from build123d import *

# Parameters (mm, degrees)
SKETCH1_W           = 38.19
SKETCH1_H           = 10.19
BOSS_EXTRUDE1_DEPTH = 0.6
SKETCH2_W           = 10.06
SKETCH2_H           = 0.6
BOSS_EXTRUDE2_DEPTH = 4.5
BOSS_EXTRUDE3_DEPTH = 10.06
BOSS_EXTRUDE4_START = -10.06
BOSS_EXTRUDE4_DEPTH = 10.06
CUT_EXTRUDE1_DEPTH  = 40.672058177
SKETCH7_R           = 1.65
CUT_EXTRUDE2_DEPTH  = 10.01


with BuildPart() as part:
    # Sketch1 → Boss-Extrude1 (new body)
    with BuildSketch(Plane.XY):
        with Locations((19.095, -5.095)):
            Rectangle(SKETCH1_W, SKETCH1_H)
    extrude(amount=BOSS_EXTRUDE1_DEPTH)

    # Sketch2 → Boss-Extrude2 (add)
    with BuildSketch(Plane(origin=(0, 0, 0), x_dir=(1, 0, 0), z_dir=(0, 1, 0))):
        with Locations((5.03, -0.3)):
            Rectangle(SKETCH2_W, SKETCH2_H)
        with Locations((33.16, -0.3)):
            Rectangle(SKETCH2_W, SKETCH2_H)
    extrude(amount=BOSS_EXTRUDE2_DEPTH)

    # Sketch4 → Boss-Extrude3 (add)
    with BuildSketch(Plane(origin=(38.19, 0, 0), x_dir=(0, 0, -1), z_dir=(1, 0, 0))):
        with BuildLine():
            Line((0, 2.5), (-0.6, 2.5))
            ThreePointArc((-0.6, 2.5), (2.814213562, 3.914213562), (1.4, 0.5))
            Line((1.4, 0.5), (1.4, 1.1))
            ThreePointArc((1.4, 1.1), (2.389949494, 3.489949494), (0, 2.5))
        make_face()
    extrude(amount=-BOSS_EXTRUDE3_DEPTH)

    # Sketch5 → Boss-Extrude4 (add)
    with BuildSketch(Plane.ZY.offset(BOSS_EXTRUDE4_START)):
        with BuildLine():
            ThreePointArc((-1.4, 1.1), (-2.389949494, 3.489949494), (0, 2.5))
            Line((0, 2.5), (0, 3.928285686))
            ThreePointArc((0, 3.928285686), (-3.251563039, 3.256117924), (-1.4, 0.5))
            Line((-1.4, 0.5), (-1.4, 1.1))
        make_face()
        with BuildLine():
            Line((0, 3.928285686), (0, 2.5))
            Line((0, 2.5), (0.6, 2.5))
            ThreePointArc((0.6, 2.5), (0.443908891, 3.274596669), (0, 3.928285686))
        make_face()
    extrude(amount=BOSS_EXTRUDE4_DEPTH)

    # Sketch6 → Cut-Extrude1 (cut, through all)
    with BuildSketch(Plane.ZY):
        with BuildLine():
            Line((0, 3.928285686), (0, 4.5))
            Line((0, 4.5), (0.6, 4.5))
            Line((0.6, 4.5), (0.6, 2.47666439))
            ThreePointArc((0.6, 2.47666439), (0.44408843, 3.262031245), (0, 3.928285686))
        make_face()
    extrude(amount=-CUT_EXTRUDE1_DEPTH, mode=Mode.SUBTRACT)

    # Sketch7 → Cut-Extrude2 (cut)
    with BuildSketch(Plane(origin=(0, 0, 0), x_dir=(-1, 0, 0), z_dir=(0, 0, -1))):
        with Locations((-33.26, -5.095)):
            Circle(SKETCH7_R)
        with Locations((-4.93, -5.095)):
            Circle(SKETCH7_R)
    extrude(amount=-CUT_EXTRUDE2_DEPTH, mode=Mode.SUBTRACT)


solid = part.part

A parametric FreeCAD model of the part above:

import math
import FreeCAD as App
import Part
import Sketcher

V = App.Vector
Q = App.Units.Quantity


def add_polygon(sketch, points):
    """Adds a closed chain of lines whose ends are joined by coincident constraints."""
    first, n = sketch.GeometryCount, len(points)
    for a, b in zip(points, points[1:] + points[:1]):
        sketch.addGeometry(Part.LineSegment(App.Vector(*a, 0), App.Vector(*b, 0)), False)
    for i in range(n):
        sketch.addConstraint(Sketcher.Constraint("Coincident", first + i, 2, first + (i + 1) % n, 1))

doc = App.newDocument("Part")
body = doc.addObject("PartDesign::Body", "Body")

# Sketch on XY plane
sketch1 = body.newObject("Sketcher::SketchObject", "Sketch")
sketch1.AttachmentSupport = (doc.getObject("XY_Plane"), [""])
sketch1.MapMode = "FlatFace"
add_polygon(sketch1, [(0, 0), (0, -10), (38, -10), (38, 0)])  # lines 0-3
sketch1.addConstraint(Sketcher.Constraint("Vertical", 0))
sketch1.addConstraint(Sketcher.Constraint("Horizontal", 1))
sketch1.addConstraint(Sketcher.Constraint("Vertical", 2))
sketch1.addConstraint(Sketcher.Constraint("Horizontal", 3))
sketch1.addConstraint(Sketcher.Constraint("Coincident", 3, 2, -1, 1))
sketch1.addConstraint(Sketcher.Constraint("DistanceX", 1, 1, 1, 2, Q("38.19 mm")))
sketch1.addConstraint(Sketcher.Constraint("DistanceY", 0, 2, 0, 1, Q("10.19 mm")))
pad1 = body.newObject("PartDesign::Pad", "Pad")
pad1.Profile = sketch1
pad1.Length = 0.6

# Sketch on XZ plane
sketch2 = body.newObject("Sketcher::SketchObject", "Sketch001")
sketch2.AttachmentSupport = (doc.getObject("XZ_Plane"), [""])
sketch2.MapMode = "FlatFace"
add_polygon(sketch2, [(0, 0), (0, 0.6), (10.1, 0.6), (10.1, 0)])  # lines 0-3
add_polygon(sketch2, [(28.1, 0), (28.1, 0.6), (38.2, 0.6), (38.2, 0)])  # lines 4-7
sketch2.addConstraint(Sketcher.Constraint("Vertical", 0))
sketch2.addConstraint(Sketcher.Constraint("Horizontal", 1))
sketch2.addConstraint(Sketcher.Constraint("Vertical", 2))
sketch2.addConstraint(Sketcher.Constraint("Horizontal", 3))
sketch2.addConstraint(Sketcher.Constraint("Vertical", 4))
sketch2.addConstraint(Sketcher.Constraint("Horizontal", 5))
sketch2.addConstraint(Sketcher.Constraint("Vertical", 6))
sketch2.addConstraint(Sketcher.Constraint("Horizontal", 7))
sketch2.addConstraint(Sketcher.Constraint("Coincident", 3, 2, -1, 1))
sketch2.addConstraint(Sketcher.Constraint("PointOnObject", 6, 2, -1))
sketch2.addConstraint(Sketcher.Constraint("Horizontal", 1, 2, 4, 2))
sketch2.addConstraint(Sketcher.Constraint("Equal", 3, 5))
sketch2.addConstraint(Sketcher.Constraint("DistanceY", 0, 1, 0, 2, Q("0.6 mm")))
sketch2.addConstraint(Sketcher.Constraint("DistanceX", 1, 1, 1, 2, Q("10.06 mm")))
sketch2.addConstraint(Sketcher.Constraint("DistanceX", -1, 1, 4, 2, Q("28.13 mm")))
pad2 = body.newObject("PartDesign::Pad", "Pad001")
pad2.Profile = sketch2
pad2.Length = 4.5
pad2.Reversed = True

# Sketch on YZ plane
sketch3 = body.newObject("Sketcher::SketchObject", "Sketch002")
sketch3.AttachmentSupport = (doc.getObject("YZ_Plane"), [""])
sketch3.MapMode = "FlatFace"
sketch3.AttachmentOffset = App.Placement(V(0, 0, 38.19), App.Rotation())
sketch3.addGeometry(Part.LineSegment(V(2.5, 0.6, 0), V(2.5, 0, 0)), False)
sketch3.addGeometry(Part.ArcOfCircle(Part.Circle(V(2.5, -1.4, 0), V(0, 0, 1), 1.4), math.radians(180), math.radians(450)), False)
sketch3.addGeometry(Part.LineSegment(V(1.1, -1.4, 0), V(0.5, -1.4, 0)), False)
sketch3.addGeometry(Part.ArcOfCircle(Part.Circle(V(2.5, -1.4, 0), V(0, 0, 1), 2), math.radians(180), math.radians(450)), False)
sketch3.addConstraint(Sketcher.Constraint("Coincident", 0, 2, 1, 2))
sketch3.addConstraint(Sketcher.Constraint("Coincident", 1, 1, 2, 1))
sketch3.addConstraint(Sketcher.Constraint("Coincident", 2, 2, 3, 1))
sketch3.addConstraint(Sketcher.Constraint("Coincident", 3, 2, 0, 1))
sketch3.addConstraint(Sketcher.Constraint("Vertical", 0))
sketch3.addConstraint(Sketcher.Constraint("Horizontal", 2))
sketch3.addConstraint(Sketcher.Constraint("Coincident", 3, 3, 1, 3))
sketch3.addConstraint(Sketcher.Constraint("PointOnObject", 0, 2, -1))
sketch3.addConstraint(Sketcher.Constraint("Horizontal", 3, 3, 1, 1))
sketch3.addConstraint(Sketcher.Constraint("Vertical", 3, 3, 0, 2))
sketch3.addConstraint(Sketcher.Constraint("Radius", 3, Q("2 mm")))
sketch3.addConstraint(Sketcher.Constraint("Radius", 1, Q("1.4 mm")))
sketch3.addConstraint(Sketcher.Constraint("DistanceX", -1, 1, 1, 3, Q("2.5 mm")))
pad3 = body.newObject("PartDesign::Pad", "Pad002")
pad3.Profile = sketch3
pad3.Length = 10.06
pad3.Reversed = True

# Sketch on YZ plane
sketch4 = body.newObject("Sketcher::SketchObject", "Sketch003")
sketch4.AttachmentSupport = (doc.getObject("YZ_Plane"), [""])
sketch4.MapMode = "FlatFace"
sketch4.AttachmentOffset = App.Placement(V(0, 0, 10.06), App.Rotation())
sketch4.addGeometry(Part.ArcOfCircle(Part.Circle(V(2.5, -1.4, 0), V(0, 0, 1), 1.4), math.radians(180), math.radians(450)), False)
sketch4.addGeometry(Part.LineSegment(V(2.5, 0, 0), V(2.5, 0.6, 0)), False)
sketch4.addGeometry(Part.ArcOfCircle(Part.Circle(V(2.5, -1.4, 0), V(0, 0, 1), 2), math.radians(44), math.radians(90)), False)
sketch4.addGeometry(Part.ArcOfCircle(Part.Circle(V(2.5, -1.4, 0), V(0, 0, 1), 2), math.radians(180), math.radians(404)), False)
sketch4.addGeometry(Part.LineSegment(V(0.5, -1.4, 0), V(1.1, -1.4, 0)), False)
sketch4.addConstraint(Sketcher.Constraint("Coincident", 0, 2, 1, 1))
sketch4.addConstraint(Sketcher.Constraint("Coincident", 1, 2, 2, 2))
sketch4.addConstraint(Sketcher.Constraint("Tangent", 2, 1, 3, 2))
sketch4.addConstraint(Sketcher.Constraint("Coincident", 3, 1, 4, 1))
sketch4.addConstraint(Sketcher.Constraint("Coincident", 4, 2, 0, 1))
sketch4.addConstraint(Sketcher.Constraint("Vertical", 1))
sketch4.addConstraint(Sketcher.Constraint("Horizontal", 4))
sketch4.addConstraint(Sketcher.Constraint("Coincident", 2, 3, 0, 3))
sketch4.addConstraint(Sketcher.Constraint("Equal", 2, 3))
sketch4.addConstraint(Sketcher.Constraint("PointOnObject", 0, 2, -1))
sketch4.addConstraint(Sketcher.Constraint("PointOnObject", 2, 1, -1))
sketch4.addConstraint(Sketcher.Constraint("Horizontal", 2, 3, 3, 1))
sketch4.addConstraint(Sketcher.Constraint("Vertical", 3, 3, 0, 2))
sketch4.addConstraint(Sketcher.Constraint("Radius", 2, Q("2 mm")))
sketch4.addConstraint(Sketcher.Constraint("Radius", 0, Q("1.4 mm")))
sketch4.addConstraint(Sketcher.Constraint("DistanceX", -1, 1, 0, 3, Q("2.5 mm")))
pad4 = body.newObject("PartDesign::Pad", "Pad003")
pad4.Profile = sketch4
pad4.Length = 10.06
pad4.Reversed = True

# Sketch on YZ plane
sketch5 = body.newObject("Sketcher::SketchObject", "Sketch004")
sketch5.AttachmentSupport = (doc.getObject("YZ_Plane"), [""])
sketch5.MapMode = "FlatFace"
sketch5.addGeometry(Part.LineSegment(V(4.5, 0, 0), V(3.9, 0, 0)), False)
sketch5.addGeometry(Part.ArcOfCircle(Part.Circle(V(2.5, -1.5, 0), V(0, 0, 1), 2.1), math.radians(45), math.radians(90)), False)
sketch5.addGeometry(Part.LineSegment(V(2.5, 0.6, 0), V(4.5, 0.6, 0)), False)
sketch5.addGeometry(Part.LineSegment(V(4.5, 0.6, 0), V(4.5, 0, 0)), False)
sketch5.addConstraint(Sketcher.Constraint("Coincident", 0, 2, 1, 1))
sketch5.addConstraint(Sketcher.Constraint("Tangent", 1, 2, 2, 1))
sketch5.addConstraint(Sketcher.Constraint("Coincident", 2, 2, 3, 1))
sketch5.addConstraint(Sketcher.Constraint("Coincident", 3, 2, 0, 1))
sketch5.addConstraint(Sketcher.Constraint("Horizontal", 0))
sketch5.addConstraint(Sketcher.Constraint("Horizontal", 2))
sketch5.addConstraint(Sketcher.Constraint("Vertical", 3))
sketch5.addConstraint(Sketcher.Constraint("PointOnObject", 0, 2, -1))
sketch5.addConstraint(Sketcher.Constraint("DistanceY", 3, 2, 3, 1, Q("0.6 mm")))
sketch5.addConstraint(Sketcher.Constraint("DistanceX", -1, 1, 2, 2, Q("4.5 mm")))
sketch5.addConstraint(Sketcher.Constraint("Radius", 1, Q("2.056004 mm")))
sketch5.addConstraint(Sketcher.Constraint("DistanceX", 0, 2, 0, 1, Q("0.571714 mm")))
pocket1 = body.newObject("PartDesign::Pocket", "Pocket")
pocket1.Profile = sketch5
pocket1.Type = "ThroughAll"
pocket1.Reversed = True

# Sketch on XY plane
sketch6 = body.newObject("Sketcher::SketchObject", "Sketch005")
sketch6.AttachmentSupport = (doc.getObject("XY_Plane"), [""])
sketch6.MapMode = "FlatFace"
sketch6.addGeometry(Part.Circle(V(33.3, -5.1, 0), V(0, 0, 1), 1.6), False)
sketch6.addGeometry(Part.Circle(V(4.9, -5.1, 0), V(0, 0, 1), 1.6), False)
sketch6.addConstraint(Sketcher.Constraint("Equal", 0, 1))
sketch6.addConstraint(Sketcher.Constraint("Horizontal", 0, 3, 1, 3))
sketch6.addConstraint(Sketcher.Constraint("Diameter", 0, Q("3.3 mm")))
sketch6.addConstraint(Sketcher.Constraint("DistanceX", -1, 1, 0, 3, Q("33.26 mm")))
sketch6.addConstraint(Sketcher.Constraint("DistanceX", -1, 1, 1, 3, Q("4.93 mm")))
sketch6.addConstraint(Sketcher.Constraint("DistanceY", 0, 3, -1, 1, Q("5.095 mm")))
pocket2 = body.newObject("PartDesign::Pocket", "Pocket001")
pocket2.Profile = sketch6
pocket2.Length = 10.01
pocket2.Reversed = True

doc.recompute()
